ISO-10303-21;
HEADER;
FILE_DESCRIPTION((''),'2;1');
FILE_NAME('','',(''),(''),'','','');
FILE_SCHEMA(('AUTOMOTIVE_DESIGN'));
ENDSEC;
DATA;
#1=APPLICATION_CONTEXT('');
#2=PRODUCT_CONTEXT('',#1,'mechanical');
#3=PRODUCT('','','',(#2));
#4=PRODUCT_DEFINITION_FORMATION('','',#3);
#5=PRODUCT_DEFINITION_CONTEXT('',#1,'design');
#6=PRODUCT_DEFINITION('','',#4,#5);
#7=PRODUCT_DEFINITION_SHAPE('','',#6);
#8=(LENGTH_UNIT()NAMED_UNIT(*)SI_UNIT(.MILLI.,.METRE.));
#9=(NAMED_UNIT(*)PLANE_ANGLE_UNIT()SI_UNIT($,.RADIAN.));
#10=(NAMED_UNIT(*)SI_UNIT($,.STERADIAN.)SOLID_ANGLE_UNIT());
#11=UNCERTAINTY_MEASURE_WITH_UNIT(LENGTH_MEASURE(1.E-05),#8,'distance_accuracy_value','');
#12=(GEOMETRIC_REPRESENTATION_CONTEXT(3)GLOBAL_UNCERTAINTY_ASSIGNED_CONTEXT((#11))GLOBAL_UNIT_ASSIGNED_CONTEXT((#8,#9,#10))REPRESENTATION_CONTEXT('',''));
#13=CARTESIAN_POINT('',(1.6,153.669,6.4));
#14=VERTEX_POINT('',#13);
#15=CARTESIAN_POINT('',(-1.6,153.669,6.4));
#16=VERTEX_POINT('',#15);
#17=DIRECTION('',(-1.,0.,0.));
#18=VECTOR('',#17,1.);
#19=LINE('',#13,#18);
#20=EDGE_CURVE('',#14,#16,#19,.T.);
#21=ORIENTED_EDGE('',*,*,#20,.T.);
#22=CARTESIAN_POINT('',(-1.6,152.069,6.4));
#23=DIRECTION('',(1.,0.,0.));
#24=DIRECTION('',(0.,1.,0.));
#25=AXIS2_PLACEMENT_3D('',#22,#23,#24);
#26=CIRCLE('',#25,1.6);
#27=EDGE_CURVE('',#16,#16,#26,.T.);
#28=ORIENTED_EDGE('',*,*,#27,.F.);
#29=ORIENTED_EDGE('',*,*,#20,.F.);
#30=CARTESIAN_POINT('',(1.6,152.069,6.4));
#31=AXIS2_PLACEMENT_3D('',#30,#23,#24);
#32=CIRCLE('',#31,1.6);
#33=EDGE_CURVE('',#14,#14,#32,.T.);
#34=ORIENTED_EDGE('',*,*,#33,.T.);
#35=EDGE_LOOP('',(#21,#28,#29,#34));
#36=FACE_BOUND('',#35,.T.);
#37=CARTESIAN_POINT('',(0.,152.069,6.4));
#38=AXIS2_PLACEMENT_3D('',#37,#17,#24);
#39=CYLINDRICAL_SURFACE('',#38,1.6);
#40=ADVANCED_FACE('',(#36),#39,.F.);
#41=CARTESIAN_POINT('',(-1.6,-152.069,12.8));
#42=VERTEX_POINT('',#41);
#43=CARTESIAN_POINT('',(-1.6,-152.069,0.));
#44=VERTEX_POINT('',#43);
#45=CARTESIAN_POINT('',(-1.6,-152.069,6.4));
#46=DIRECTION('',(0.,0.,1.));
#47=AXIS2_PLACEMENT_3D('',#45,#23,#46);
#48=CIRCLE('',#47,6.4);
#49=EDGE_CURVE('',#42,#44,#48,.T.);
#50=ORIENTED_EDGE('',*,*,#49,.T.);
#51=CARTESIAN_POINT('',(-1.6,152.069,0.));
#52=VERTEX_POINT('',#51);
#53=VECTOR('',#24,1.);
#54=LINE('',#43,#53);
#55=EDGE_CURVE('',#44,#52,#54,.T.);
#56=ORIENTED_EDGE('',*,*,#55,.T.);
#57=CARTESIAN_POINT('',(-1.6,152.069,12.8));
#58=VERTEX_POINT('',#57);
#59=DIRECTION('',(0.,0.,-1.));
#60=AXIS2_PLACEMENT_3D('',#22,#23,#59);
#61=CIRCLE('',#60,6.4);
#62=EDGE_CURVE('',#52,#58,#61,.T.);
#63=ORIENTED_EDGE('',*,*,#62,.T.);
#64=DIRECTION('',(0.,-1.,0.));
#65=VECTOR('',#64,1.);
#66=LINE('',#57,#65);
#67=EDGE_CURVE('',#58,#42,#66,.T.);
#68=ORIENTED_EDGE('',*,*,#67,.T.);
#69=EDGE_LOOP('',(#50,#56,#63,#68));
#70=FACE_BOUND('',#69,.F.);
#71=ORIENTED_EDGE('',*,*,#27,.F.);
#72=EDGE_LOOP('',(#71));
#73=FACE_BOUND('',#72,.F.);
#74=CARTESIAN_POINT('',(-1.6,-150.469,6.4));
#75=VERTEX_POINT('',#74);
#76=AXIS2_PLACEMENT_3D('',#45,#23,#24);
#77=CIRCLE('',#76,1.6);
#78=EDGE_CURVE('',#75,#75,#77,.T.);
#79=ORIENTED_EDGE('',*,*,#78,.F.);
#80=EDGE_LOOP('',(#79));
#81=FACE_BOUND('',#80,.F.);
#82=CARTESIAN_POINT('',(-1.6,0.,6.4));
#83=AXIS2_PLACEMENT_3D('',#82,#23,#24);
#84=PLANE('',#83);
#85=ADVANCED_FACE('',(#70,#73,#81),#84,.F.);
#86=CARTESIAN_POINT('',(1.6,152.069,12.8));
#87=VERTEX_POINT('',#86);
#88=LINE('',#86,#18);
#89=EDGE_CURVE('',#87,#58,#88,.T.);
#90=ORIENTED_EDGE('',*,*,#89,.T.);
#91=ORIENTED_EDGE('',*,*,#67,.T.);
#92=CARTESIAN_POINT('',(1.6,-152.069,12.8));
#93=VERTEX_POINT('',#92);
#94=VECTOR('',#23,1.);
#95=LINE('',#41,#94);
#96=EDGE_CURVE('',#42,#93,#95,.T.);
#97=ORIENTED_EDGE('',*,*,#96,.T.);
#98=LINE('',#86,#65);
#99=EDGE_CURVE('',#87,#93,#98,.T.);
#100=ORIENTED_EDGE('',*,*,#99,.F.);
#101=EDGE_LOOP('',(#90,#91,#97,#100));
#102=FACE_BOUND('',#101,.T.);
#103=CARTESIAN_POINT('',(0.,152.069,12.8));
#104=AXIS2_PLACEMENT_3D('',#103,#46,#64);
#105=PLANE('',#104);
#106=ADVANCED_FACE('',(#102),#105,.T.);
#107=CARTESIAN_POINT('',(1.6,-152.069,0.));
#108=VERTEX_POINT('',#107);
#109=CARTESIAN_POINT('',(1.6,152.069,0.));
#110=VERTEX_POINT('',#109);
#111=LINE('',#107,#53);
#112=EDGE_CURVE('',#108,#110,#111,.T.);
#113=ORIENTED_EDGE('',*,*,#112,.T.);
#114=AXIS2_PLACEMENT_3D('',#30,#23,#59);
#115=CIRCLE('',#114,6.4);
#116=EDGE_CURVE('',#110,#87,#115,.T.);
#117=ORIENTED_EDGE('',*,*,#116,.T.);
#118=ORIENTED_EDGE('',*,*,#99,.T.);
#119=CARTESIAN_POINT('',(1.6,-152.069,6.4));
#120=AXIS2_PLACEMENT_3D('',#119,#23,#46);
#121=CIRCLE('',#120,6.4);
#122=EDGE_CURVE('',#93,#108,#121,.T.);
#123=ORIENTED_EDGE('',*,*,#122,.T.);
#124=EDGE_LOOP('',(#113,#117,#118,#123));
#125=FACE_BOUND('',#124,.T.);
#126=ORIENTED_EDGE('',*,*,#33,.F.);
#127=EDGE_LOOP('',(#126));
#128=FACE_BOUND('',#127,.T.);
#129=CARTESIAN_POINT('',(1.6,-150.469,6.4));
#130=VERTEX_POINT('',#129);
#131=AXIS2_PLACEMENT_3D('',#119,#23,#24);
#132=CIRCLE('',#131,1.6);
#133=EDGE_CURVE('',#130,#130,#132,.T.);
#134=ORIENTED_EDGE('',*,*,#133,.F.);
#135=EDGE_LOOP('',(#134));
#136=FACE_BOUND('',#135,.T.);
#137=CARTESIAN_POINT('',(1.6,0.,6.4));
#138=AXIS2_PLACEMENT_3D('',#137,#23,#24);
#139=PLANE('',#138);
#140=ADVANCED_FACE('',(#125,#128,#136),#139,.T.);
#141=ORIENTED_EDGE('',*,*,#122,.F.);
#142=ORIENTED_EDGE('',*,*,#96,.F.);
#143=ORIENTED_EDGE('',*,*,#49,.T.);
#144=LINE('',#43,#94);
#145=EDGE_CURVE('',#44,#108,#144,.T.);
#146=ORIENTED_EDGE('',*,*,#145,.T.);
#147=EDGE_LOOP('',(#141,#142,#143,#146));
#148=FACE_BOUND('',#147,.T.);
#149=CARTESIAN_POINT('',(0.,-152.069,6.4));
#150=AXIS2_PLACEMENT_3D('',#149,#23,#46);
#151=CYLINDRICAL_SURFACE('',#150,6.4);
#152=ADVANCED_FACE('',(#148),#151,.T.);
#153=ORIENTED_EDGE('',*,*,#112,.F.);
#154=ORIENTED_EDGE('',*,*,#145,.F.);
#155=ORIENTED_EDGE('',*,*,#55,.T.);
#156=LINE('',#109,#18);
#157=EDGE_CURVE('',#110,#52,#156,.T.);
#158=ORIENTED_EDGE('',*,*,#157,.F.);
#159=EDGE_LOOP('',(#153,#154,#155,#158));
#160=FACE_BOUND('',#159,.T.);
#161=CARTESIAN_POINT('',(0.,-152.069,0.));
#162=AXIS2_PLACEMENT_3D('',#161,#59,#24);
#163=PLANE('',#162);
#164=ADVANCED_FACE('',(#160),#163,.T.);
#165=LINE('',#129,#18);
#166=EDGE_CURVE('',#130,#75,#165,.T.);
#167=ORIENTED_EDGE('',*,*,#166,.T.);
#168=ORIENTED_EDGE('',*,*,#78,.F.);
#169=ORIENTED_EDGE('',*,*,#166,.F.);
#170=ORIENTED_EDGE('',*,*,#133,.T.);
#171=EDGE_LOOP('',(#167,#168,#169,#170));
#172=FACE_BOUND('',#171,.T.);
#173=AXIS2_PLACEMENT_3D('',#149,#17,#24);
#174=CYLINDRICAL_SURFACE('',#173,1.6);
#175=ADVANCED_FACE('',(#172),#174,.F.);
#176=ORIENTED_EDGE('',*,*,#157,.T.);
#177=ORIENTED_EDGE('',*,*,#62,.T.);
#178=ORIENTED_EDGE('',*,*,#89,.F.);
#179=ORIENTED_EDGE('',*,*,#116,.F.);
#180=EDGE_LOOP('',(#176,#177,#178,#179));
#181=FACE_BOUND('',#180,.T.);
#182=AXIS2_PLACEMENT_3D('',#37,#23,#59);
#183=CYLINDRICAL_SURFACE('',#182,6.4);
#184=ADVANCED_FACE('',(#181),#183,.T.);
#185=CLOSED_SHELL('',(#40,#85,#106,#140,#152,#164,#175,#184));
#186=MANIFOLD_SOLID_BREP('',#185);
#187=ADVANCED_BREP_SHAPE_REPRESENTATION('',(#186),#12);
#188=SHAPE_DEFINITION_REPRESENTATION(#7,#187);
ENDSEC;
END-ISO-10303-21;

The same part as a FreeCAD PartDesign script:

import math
import FreeCAD as App
import Part
import Sketcher

V = App.Vector

doc = App.newDocument("Part")
body = doc.addObject("PartDesign::Body", "Body")

# Sketch on YZ plane
sketch1 = body.newObject("Sketcher::SketchObject", "Sketch")
sketch1.AttachmentSupport = (doc.getObject("YZ_Plane"), [""])
sketch1.MapMode = "FlatFace"
sketch1.addGeometry([
    Part.LineSegment(V(152.1, 12.8, 0), V(-152.1, 12.8, 0)),  # 0
    Part.ArcOfCircle(Part.Circle(V(-152.1, 6.4, 0), V(0, 0, 1), 6.4), math.radians(90), math.radians(270)),  # 1
    Part.LineSegment(V(-152.1, 0, 0), V(152.1, 0, 0)),  # 2
    Part.ArcOfCircle(Part.Circle(V(152.1, 6.4, 0), V(0, 0, 1), 6.4), math.radians(-90), math.radians(90)),  # 3
    Part.Circle(V(-152.1, 6.4, 0), V(0, 0, 1), 1.6),  # 4
    Part.Circle(V(152.1, 6.4, 0), V(0, 0, 1), 1.6),  # 5
], False)
sketch1.addConstraint([
    Sketcher.Constraint("Tangent", 0, 2, 1, 1),
    Sketcher.Constraint("Tangent", 1, 2, 2, 1),
    Sketcher.Constraint("Tangent", 2, 2, 3, 1),
    Sketcher.Constraint("Tangent", 3, 2, 0, 1),
    Sketcher.Constraint("Horizontal", 0),
    Sketcher.Constraint("Horizontal", 2),
    Sketcher.Constraint("Coincident", 4, 3, 1, 3),
    Sketcher.Constraint("Coincident", 5, 3, 3, 3),
    Sketcher.Constraint("Equal", 4, 5),
    Sketcher.Constraint("Symmetric", 1, 2, 2, 2, -1, 1),
    Sketcher.Constraint("Diameter", 4, 3.2),
    Sketcher.Constraint("Radius", 1, 6.4),
    Sketcher.Constraint("DistanceX", 0, 2, 0, 1, 304.138),
])
pad1 = body.newObject("PartDesign::Pad", "Pad")
pad1.Profile = sketch1
pad1.Length = 3.2
pad1.Midplane = True

doc.recompute()
